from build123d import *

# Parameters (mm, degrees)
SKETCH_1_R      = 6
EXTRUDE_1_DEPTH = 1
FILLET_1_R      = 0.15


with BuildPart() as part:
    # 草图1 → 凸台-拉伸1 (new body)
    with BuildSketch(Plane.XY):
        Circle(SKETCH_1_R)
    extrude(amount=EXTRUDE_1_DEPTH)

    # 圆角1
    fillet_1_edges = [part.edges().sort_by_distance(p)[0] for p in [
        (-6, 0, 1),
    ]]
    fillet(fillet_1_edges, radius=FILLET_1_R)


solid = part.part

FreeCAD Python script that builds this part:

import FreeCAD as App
import Part
import Sketcher

V = App.Vector
Q = App.Units.Quantity


def edges_at(feature, points):
    """Names of the edges that pass closest to the given points."""
    edges = feature.Shape.Edges
    near = lambda p: min(range(len(edges)), key=lambda i: edges[i].distToShape(Part.Vertex(*p))[0])
    return sorted({f"Edge{near(p) + 1}" for p in points})

doc = App.newDocument("Part")
body = doc.addObject("PartDesign::Body", "Body")

# Sketch on XY plane
sketch1 = doc.addObject("Sketcher::SketchObject", "Sketch")
body.addObject(sketch1)
sketch1.AttachmentSupport = (doc.XY_Plane, [""])
sketch1.MapMode = "FlatFace"
sketch1.addGeometry(Part.Circle(V(0, 0, 0), V(0, 0, 1), 6), False)
sketch1.addConstraint([
    Sketcher.Constraint("Coincident", 0, 3, -1, 1),
    Sketcher.Constraint("Diameter", 0, Q("12 mm")),
])
pad1 = doc.addObject("PartDesign::Pad", "Pad")
body.addObject(pad1)
pad1.Profile = sketch1
pad1.Length = 1
doc.recompute()

fillet = doc.addObject("PartDesign::Fillet", "Fillet")
body.addObject(fillet)
fillet.Base = (pad1, edges_at(pad1, [(-6, 0, 1)]))
fillet.Radius = 0.15

doc.recompute()
